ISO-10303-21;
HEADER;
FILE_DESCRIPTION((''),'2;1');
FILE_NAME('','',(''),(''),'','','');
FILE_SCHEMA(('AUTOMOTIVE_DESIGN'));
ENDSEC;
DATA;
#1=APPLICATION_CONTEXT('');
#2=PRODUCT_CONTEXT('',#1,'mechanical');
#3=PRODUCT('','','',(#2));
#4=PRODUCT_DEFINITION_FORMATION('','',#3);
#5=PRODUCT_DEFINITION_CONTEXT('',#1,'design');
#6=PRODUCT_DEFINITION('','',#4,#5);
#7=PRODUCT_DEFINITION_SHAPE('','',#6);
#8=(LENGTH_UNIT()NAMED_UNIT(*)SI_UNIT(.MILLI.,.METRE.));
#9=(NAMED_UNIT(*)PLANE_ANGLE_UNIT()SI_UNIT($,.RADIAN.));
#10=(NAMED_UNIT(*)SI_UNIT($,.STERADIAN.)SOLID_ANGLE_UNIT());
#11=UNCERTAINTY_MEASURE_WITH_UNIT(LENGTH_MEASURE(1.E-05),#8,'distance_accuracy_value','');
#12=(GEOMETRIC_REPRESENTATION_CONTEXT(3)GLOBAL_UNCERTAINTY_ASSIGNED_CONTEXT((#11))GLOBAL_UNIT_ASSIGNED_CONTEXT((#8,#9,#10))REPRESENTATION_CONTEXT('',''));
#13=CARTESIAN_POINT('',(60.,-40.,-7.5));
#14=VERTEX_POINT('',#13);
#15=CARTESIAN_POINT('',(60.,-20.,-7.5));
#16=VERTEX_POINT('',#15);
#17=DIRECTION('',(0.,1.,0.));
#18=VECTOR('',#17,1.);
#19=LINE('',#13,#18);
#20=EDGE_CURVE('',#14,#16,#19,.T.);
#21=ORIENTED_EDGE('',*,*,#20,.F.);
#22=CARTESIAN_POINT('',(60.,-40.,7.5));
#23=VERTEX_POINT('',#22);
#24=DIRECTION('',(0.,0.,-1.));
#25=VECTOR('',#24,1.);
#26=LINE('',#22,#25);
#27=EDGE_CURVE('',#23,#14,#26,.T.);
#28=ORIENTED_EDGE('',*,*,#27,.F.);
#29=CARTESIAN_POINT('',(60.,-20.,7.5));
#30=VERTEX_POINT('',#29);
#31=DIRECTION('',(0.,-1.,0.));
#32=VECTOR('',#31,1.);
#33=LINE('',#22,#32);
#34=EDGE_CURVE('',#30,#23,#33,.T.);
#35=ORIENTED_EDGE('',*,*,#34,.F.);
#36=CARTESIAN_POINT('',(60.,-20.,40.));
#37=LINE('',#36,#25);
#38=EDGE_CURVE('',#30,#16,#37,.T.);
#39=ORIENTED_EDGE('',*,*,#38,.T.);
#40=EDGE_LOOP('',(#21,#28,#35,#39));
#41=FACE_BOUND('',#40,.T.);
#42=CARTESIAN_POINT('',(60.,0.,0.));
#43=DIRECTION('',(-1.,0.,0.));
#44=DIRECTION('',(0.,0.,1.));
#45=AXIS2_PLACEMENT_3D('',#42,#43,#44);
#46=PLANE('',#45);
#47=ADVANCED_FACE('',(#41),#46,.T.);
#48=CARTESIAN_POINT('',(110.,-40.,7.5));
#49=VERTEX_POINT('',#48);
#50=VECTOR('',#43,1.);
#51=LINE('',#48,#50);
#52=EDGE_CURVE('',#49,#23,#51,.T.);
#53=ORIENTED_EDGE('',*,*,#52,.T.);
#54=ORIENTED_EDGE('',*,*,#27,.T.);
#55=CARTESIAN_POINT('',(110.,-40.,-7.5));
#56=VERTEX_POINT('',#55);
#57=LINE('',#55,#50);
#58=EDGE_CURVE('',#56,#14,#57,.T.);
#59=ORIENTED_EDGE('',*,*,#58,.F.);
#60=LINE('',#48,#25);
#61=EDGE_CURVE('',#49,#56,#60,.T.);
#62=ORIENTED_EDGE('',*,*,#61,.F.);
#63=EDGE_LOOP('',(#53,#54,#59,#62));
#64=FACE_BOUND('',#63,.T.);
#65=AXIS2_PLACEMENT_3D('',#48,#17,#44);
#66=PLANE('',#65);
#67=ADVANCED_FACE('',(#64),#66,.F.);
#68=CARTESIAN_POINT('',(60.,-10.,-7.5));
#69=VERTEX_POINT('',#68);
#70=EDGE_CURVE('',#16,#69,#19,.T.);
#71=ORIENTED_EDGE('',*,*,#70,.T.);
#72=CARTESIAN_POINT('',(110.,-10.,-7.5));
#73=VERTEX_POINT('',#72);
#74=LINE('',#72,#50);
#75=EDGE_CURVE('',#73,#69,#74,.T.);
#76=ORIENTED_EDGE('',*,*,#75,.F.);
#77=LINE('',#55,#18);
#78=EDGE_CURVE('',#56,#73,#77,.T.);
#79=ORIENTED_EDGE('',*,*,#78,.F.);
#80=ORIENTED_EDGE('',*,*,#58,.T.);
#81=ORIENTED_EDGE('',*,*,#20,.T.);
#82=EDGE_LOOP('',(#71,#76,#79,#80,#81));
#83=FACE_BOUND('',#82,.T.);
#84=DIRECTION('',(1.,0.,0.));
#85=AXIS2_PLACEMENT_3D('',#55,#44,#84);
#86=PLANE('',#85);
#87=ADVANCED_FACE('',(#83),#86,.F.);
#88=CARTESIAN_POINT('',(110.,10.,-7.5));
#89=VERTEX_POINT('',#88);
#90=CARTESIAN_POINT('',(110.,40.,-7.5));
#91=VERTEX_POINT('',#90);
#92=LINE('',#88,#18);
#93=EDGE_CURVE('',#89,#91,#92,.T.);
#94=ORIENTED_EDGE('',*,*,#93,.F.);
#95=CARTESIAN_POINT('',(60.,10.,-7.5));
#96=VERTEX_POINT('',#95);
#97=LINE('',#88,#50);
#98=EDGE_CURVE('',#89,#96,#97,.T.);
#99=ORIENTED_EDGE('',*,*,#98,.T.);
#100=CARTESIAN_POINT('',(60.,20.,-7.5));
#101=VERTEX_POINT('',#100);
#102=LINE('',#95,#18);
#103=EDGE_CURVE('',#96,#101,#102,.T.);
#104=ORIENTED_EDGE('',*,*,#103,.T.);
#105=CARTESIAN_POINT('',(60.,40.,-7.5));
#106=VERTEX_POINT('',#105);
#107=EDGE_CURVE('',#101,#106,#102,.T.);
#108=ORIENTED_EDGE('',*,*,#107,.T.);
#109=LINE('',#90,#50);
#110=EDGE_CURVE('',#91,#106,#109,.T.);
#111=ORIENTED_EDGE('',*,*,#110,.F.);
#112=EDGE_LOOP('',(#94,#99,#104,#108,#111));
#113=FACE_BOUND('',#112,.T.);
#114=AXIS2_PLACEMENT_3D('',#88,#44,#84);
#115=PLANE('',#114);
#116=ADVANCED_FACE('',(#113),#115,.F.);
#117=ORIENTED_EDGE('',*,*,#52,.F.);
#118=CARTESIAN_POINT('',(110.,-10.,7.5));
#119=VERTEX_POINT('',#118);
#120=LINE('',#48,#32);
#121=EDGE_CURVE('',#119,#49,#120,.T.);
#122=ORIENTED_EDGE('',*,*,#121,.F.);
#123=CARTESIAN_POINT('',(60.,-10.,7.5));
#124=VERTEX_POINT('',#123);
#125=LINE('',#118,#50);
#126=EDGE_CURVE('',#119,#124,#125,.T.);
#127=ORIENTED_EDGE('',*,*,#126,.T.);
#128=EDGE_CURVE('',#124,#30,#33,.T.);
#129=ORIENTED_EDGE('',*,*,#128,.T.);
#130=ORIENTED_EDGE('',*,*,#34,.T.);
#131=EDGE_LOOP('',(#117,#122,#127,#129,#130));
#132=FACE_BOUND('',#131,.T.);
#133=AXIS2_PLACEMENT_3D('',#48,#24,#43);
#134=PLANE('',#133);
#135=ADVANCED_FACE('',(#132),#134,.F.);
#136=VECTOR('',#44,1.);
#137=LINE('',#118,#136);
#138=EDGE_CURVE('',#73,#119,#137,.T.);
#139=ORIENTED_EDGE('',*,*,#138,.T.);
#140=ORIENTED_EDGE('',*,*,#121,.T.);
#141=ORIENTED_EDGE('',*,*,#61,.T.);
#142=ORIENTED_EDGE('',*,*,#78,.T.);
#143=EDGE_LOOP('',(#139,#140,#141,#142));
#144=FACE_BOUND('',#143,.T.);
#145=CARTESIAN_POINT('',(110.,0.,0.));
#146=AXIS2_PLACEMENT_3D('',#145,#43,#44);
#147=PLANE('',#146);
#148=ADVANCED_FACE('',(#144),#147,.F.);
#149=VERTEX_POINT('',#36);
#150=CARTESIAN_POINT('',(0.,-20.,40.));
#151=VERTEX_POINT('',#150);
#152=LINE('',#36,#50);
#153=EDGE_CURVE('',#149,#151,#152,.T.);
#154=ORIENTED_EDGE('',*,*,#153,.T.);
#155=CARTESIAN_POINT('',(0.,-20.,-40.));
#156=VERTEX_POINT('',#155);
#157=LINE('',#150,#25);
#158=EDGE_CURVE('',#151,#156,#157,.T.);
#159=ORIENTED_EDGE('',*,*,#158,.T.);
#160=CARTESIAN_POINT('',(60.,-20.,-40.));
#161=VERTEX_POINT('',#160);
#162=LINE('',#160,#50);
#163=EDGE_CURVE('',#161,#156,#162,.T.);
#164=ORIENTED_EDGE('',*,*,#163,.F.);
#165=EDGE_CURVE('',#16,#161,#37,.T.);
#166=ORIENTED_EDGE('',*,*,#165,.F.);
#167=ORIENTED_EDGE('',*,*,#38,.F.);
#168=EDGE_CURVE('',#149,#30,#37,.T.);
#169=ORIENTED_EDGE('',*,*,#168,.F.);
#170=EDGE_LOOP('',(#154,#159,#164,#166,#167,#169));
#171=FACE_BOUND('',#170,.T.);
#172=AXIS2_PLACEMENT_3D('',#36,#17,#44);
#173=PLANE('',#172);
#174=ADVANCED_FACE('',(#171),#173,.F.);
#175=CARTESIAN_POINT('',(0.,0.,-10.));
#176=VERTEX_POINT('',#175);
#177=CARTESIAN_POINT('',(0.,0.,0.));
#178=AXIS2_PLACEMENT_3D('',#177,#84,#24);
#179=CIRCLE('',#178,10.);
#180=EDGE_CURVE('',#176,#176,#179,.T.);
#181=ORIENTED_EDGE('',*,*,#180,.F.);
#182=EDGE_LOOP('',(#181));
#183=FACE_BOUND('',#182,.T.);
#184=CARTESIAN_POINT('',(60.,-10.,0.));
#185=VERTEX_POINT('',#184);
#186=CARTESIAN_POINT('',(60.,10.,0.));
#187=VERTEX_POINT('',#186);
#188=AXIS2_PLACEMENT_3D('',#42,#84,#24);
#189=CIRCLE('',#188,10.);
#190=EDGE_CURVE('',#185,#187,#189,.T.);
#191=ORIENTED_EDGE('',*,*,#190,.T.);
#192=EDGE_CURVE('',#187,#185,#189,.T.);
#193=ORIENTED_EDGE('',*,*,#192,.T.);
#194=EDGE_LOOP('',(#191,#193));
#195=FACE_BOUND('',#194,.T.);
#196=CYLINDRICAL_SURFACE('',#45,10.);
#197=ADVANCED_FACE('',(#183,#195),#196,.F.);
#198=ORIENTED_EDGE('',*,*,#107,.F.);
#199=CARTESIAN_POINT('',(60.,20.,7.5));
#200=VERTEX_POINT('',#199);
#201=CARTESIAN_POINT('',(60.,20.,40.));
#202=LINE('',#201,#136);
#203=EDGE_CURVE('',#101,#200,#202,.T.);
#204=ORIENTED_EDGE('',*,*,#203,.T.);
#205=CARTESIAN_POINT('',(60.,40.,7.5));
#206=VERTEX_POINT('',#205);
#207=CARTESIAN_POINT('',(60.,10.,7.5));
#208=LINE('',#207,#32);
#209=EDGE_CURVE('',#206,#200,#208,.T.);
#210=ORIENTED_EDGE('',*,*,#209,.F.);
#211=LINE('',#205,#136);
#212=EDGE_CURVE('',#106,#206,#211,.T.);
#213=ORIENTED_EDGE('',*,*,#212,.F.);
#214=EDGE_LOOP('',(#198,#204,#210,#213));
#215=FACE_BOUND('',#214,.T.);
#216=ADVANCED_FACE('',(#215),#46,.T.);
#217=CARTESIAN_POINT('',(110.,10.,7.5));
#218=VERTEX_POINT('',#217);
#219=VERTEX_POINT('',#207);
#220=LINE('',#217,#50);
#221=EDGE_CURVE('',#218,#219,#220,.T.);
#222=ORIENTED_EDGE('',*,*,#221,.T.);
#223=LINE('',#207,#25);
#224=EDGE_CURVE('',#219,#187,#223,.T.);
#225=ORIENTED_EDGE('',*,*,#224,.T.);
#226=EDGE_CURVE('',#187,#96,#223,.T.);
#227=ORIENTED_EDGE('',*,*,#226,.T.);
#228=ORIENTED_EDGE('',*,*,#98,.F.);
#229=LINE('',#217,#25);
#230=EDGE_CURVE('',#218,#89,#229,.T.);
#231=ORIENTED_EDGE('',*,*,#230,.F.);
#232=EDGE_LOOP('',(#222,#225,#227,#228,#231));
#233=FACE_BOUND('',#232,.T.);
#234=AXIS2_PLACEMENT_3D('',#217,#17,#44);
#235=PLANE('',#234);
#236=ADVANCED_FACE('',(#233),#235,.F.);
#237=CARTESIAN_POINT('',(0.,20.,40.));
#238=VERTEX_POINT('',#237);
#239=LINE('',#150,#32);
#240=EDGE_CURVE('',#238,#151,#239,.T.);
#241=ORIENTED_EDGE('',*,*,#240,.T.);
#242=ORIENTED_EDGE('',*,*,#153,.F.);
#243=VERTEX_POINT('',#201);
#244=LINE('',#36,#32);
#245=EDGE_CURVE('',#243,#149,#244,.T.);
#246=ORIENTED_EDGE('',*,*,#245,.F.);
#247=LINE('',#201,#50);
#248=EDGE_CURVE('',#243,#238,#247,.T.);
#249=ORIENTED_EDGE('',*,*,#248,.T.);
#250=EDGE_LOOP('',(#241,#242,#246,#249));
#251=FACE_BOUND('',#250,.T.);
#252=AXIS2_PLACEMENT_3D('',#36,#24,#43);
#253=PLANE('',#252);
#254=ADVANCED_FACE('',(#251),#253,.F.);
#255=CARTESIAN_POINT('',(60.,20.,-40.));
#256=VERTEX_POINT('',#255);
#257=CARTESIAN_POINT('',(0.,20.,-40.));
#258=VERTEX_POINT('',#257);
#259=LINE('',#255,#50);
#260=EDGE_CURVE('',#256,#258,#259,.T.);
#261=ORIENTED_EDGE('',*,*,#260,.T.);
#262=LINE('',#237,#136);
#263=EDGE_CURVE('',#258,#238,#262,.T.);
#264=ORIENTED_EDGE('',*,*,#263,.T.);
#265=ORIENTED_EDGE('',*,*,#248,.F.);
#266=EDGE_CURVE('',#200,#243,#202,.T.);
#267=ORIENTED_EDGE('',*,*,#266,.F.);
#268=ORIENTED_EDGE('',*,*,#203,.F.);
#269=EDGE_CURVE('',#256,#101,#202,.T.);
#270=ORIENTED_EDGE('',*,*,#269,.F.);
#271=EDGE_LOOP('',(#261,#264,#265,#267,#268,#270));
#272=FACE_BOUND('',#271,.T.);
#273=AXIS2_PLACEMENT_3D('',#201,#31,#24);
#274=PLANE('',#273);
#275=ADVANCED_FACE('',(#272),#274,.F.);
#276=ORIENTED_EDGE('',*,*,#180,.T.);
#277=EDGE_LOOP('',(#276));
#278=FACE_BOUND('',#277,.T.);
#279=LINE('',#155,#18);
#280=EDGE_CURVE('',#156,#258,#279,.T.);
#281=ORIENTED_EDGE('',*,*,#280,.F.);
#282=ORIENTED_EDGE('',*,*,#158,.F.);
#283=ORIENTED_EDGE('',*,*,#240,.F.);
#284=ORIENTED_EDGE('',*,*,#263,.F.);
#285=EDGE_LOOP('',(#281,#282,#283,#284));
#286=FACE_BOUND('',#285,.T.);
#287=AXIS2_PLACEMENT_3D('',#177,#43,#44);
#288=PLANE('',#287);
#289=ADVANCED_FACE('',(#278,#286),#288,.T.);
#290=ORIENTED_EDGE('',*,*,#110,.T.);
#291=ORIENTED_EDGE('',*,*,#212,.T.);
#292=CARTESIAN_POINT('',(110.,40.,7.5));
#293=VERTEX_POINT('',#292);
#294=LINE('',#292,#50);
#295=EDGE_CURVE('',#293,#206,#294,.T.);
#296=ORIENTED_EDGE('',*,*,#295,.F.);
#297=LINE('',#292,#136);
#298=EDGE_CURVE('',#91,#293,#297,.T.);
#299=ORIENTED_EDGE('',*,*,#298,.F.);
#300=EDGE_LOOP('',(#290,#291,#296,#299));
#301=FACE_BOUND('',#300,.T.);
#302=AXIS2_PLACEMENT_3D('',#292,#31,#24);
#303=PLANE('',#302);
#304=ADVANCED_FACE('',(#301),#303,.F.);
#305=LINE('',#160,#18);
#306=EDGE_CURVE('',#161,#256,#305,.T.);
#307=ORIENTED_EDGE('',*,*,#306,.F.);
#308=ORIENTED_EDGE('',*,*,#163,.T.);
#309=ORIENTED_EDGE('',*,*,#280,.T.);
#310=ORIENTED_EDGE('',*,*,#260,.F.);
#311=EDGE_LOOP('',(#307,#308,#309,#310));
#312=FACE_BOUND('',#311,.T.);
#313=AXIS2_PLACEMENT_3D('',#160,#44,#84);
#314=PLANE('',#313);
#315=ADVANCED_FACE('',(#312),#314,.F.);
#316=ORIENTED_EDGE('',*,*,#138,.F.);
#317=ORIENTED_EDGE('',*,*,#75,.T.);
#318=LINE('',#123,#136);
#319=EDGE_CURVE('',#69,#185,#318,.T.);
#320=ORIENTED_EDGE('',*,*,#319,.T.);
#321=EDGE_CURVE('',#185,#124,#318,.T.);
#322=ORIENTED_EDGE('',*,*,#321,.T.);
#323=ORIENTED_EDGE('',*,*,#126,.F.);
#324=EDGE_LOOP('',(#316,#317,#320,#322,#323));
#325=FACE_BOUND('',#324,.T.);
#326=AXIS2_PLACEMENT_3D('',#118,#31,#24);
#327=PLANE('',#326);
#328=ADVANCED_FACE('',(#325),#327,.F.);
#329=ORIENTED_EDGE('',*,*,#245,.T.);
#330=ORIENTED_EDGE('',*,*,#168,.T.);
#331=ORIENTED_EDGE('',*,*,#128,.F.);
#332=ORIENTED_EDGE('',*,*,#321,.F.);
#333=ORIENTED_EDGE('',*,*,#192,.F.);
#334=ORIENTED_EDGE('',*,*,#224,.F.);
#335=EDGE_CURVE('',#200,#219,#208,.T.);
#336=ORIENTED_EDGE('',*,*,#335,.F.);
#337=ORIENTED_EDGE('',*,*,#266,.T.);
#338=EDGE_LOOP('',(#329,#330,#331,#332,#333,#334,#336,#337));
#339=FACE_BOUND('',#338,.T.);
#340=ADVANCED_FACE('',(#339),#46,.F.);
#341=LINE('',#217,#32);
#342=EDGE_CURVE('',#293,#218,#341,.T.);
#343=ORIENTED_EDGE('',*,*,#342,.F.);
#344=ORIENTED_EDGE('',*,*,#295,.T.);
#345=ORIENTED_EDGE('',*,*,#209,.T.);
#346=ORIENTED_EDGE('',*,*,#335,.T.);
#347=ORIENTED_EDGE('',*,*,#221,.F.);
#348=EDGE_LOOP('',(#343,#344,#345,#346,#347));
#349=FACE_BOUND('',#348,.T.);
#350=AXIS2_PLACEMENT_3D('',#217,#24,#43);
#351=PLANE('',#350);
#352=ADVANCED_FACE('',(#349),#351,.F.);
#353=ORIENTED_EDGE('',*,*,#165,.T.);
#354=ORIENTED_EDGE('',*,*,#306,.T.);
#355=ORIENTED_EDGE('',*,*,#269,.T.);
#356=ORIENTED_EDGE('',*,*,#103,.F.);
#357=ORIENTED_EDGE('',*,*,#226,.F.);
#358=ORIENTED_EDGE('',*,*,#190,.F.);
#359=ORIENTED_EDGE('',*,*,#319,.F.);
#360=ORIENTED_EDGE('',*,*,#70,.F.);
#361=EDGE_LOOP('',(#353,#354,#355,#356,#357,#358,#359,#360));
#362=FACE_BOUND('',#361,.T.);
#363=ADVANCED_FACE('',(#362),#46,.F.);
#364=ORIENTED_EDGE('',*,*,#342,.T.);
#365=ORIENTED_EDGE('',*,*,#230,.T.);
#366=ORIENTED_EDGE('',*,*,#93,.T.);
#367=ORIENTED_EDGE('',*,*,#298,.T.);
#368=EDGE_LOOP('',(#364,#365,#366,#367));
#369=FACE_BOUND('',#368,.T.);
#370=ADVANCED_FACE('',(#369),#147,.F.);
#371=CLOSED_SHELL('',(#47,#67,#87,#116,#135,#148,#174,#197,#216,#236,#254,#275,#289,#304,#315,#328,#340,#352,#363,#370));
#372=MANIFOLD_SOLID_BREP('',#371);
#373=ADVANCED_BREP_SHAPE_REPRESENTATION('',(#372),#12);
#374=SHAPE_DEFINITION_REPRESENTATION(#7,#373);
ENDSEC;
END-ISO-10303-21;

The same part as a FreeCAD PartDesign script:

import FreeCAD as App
import Part
import Sketcher
from FreeCAD import Vector

doc = App.newDocument("Part")
body = doc.addObject("PartDesign::Body", "Body")

sketch1 = body.newObject("Sketcher::SketchObject", "Sketch")
sketch1.AttachmentSupport = (doc.getObject("YZ_Plane"), [""])
sketch1.MapMode = "FlatFace"
sketch1.addGeometry([
    Part.LineSegment(Vector(20, 40, 0), Vector(-20, 40, 0)),
    Part.LineSegment(Vector(-20, 40, 0), Vector(-20, -40, 0)),
    Part.LineSegment(Vector(-20, -40, 0), Vector(20, -40, 0)),
    Part.LineSegment(Vector(20, -40, 0), Vector(20, 40, 0)),
], False)
sketch1.addConstraint([
    Sketcher.Constraint("Coincident", 0, 2, 1, 1),
    Sketcher.Constraint("Coincident", 1, 2, 2, 1),
    Sketcher.Constraint("Coincident", 2, 2, 3, 1),
    Sketcher.Constraint("Coincident", 3, 2, 0, 1),
    Sketcher.Constraint("Horizontal", 0),
    Sketcher.Constraint("Vertical", 1),
    Sketcher.Constraint("Horizontal", 2),
    Sketcher.Constraint("Vertical", 3),
    Sketcher.Constraint("Symmetric", 0, 2, 2, 2, -1, 1),
    Sketcher.Constraint("DistanceX", 0, 2, 0, 1, 40.0),
    Sketcher.Constraint("DistanceY", 1, 2, 1, 1, 80.0),
])
pad1 = body.newObject("PartDesign::Pad", "Pad")
pad1.Profile = sketch1
pad1.Length = 60

sketch2 = body.newObject("Sketcher::SketchObject", "Sketch001")
sketch2.AttachmentSupport = (doc.getObject("YZ_Plane"), [""])
sketch2.MapMode = "FlatFace"
sketch2.addGeometry(Part.Circle(Vector(0, 0, 0), Vector(0, 0, 1), 10), False)
sketch2.addConstraint([
    Sketcher.Constraint("Coincident", 0, 3, -1, 1),
    Sketcher.Constraint("Diameter", 0, 20.0),
])
pocket1 = body.newObject("PartDesign::Pocket", "Pocket")
pocket1.Profile = sketch2
pocket1.Length = 60
pocket1.Reversed = True

sketch3 = body.newObject("Sketcher::SketchObject", "Sketch002")
sketch3.AttachmentSupport = (doc.getObject("YZ_Plane"), [""])
sketch3.MapMode = "FlatFace"
sketch3.AttachmentOffset = App.Placement(Vector(0, 0, 60), App.Rotation())
sketch3.addGeometry([
    Part.LineSegment(Vector(40, 8, 0), Vector(10, 8, 0)),
    Part.LineSegment(Vector(10, 8, 0), Vector(10, -8, 0)),
    Part.LineSegment(Vector(10, -8, 0), Vector(40, -8, 0)),
    Part.LineSegment(Vector(40, -8, 0), Vector(40, 8, 0)),
    Part.LineSegment(Vector(-10, 8, 0), Vector(-40, 8, 0)),
    Part.LineSegment(Vector(-40, 8, 0), Vector(-40, -8, 0)),
    Part.LineSegment(Vector(-40, -8, 0), Vector(-10, -8, 0)),
    Part.LineSegment(Vector(-10, -8, 0), Vector(-10, 8, 0)),
], False)
sketch3.addConstraint([
    Sketcher.Constraint("Coincident", 0, 2, 1, 1),
    Sketcher.Constraint("Coincident", 1, 2, 2, 1),
    Sketcher.Constraint("Coincident", 2, 2, 3, 1),
    Sketcher.Constraint("Coincident", 3, 2, 0, 1),
    Sketcher.Constraint("Coincident", 4, 2, 5, 1),
    Sketcher.Constraint("Coincident", 5, 2, 6, 1),
    Sketcher.Constraint("Coincident", 6, 2, 7, 1),
    Sketcher.Constraint("Coincident", 7, 2, 4, 1),
    Sketcher.Constraint("Horizontal", 0),
    Sketcher.Constraint("Vertical", 1),
    Sketcher.Constraint("Horizontal", 2),
    Sketcher.Constraint("Vertical", 3),
    Sketcher.Constraint("Horizontal", 4),
    Sketcher.Constraint("Vertical", 5),
    Sketcher.Constraint("Horizontal", 6),
    Sketcher.Constraint("Vertical", 7),
    Sketcher.Constraint("Symmetric", 2, 2, 4, 2, -1, 1),
    Sketcher.Constraint("Symmetric", 0, 2, 6, 2, -1, 1),
    Sketcher.Constraint("Horizontal", 3, 2, 4, 2),
    Sketcher.Constraint("DistanceX", 0, 2, 0, 1, 30.0),
    Sketcher.Constraint("DistanceY", 1, 2, 1, 1, 15.0),
    Sketcher.Constraint("DistanceX", -1, 1, 0, 2, 10.0),
])
pad2 = body.newObject("PartDesign::Pad", "Pad001")
pad2.Profile = sketch3
pad2.Length = 50

doc.recompute()
